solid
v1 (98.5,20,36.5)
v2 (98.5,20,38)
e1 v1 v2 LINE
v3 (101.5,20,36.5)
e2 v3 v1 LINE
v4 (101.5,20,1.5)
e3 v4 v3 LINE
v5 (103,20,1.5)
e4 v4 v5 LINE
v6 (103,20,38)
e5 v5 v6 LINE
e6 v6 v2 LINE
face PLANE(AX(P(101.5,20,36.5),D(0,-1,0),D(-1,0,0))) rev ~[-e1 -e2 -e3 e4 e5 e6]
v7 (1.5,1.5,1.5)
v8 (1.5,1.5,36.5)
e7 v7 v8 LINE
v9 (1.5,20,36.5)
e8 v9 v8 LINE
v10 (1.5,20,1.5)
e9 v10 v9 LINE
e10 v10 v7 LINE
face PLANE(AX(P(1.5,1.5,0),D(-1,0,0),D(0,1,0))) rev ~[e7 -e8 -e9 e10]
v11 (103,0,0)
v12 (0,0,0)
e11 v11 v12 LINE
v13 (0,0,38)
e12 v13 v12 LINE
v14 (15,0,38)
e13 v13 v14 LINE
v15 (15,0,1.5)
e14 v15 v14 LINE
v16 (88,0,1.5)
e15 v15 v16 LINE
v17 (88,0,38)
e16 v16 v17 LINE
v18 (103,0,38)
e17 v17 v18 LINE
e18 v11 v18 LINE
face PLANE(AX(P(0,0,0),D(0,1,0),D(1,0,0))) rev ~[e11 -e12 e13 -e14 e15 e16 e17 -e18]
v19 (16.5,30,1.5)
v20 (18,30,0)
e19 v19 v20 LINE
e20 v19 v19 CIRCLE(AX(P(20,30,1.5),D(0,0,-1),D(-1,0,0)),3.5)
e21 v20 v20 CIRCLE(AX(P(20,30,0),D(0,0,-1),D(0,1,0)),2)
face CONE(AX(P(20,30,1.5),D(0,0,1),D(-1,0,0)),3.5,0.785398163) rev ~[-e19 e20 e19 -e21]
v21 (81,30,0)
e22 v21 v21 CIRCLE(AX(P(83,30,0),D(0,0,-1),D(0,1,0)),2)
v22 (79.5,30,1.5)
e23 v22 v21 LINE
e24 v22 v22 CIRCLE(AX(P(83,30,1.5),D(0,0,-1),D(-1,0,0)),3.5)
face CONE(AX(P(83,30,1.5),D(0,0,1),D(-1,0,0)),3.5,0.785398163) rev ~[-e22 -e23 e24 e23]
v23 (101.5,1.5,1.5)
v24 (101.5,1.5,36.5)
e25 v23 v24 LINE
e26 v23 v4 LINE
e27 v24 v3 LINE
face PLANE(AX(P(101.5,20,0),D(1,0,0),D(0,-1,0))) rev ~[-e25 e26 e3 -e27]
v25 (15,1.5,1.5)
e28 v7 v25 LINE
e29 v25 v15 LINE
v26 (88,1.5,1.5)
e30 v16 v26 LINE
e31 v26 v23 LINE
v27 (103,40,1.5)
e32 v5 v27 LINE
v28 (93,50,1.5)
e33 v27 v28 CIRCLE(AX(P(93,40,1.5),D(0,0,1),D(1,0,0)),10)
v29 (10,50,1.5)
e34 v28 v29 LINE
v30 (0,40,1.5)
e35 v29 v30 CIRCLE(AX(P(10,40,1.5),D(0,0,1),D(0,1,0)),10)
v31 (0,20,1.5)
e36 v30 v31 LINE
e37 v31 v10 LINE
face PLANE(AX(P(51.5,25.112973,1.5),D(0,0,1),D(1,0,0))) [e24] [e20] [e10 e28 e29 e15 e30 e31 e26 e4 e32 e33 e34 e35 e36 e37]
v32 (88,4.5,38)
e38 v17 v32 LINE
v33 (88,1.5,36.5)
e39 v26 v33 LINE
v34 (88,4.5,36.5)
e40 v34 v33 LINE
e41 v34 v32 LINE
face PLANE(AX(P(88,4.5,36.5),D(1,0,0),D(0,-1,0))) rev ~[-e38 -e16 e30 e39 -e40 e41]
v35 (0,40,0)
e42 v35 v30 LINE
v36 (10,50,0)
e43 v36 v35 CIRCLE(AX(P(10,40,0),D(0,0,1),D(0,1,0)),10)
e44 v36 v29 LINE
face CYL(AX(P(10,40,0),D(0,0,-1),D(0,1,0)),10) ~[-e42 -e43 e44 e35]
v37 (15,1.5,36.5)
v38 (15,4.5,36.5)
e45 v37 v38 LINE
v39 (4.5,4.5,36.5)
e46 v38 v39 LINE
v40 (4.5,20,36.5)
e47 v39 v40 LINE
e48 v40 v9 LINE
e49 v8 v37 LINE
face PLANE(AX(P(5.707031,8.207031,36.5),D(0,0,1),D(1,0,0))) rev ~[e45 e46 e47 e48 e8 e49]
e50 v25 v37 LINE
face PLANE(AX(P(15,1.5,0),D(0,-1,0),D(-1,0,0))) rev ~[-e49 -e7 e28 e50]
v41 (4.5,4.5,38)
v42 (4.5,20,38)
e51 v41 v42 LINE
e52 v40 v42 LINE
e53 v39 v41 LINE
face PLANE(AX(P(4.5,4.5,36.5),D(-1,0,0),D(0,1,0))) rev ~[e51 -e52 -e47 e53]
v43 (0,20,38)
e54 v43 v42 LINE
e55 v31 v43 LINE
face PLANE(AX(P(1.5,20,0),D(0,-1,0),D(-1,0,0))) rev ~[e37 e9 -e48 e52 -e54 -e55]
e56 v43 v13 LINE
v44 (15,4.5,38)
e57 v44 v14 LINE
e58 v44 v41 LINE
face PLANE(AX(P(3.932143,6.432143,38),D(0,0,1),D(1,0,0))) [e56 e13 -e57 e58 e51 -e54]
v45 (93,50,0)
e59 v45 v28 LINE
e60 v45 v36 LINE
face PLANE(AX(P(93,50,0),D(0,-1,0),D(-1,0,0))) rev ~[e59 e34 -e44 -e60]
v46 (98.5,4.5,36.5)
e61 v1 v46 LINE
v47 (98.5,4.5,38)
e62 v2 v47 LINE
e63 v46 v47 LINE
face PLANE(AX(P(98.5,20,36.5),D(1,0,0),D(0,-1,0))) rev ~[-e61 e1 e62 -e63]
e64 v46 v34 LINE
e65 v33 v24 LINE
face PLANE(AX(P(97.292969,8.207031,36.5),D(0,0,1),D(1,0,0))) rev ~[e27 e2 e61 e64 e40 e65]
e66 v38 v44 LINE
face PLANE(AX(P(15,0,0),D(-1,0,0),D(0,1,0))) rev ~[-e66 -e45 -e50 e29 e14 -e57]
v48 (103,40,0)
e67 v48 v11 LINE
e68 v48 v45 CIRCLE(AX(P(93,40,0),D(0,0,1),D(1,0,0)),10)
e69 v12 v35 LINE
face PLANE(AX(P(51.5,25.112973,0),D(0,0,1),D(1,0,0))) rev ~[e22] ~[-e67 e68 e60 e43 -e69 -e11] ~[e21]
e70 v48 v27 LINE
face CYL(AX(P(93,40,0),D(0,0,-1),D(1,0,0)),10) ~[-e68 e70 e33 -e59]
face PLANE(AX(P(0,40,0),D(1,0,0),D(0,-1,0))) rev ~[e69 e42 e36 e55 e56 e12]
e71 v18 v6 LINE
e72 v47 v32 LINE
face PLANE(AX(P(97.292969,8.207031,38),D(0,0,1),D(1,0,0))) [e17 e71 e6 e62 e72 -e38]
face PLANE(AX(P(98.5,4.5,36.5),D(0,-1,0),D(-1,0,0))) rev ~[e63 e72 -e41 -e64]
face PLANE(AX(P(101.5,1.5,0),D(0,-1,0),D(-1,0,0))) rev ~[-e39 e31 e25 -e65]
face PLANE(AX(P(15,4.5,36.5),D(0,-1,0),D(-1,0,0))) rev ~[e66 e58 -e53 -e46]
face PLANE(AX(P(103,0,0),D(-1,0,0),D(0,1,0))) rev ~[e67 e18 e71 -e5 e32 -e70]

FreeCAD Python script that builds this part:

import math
import FreeCAD as App
import Part
import Sketcher
from FreeCAD import Vector
Q = App.Units.Quantity

doc = App.newDocument("Part")
body = doc.addObject("PartDesign::Body", "Body")

sketch1 = body.newObject("Sketcher::SketchObject", "Sketch")
sketch1.AttachmentSupport = (doc.getObject("XY_Plane"), [""])
sketch1.MapMode = "FlatFace"
sketch1.addGeometry(Part.LineSegment(Vector(103, 0, 0), Vector(103, 40, 0)), False)
sketch1.addGeometry(Part.ArcOfCircle(Part.Circle(Vector(93, 40, 0), Vector(0, 0, 1), 10), math.radians(0), math.radians(90)), False)
sketch1.addGeometry(Part.LineSegment(Vector(93, 50, 0), Vector(10, 50, 0)), False)
sketch1.addGeometry(Part.ArcOfCircle(Part.Circle(Vector(10, 40, 0), Vector(0, 0, 1), 10), math.radians(90), math.radians(180)), False)
sketch1.addGeometry(Part.LineSegment(Vector(0, 40, 0), Vector(0, 0, 0)), False)
sketch1.addGeometry(Part.LineSegment(Vector(0, 0, 0), Vector(103, 0, 0)), False)
sketch1.addConstraint(Sketcher.Constraint("Tangent", 0, 2, 1, 1))
sketch1.addConstraint(Sketcher.Constraint("Tangent", 1, 2, 2, 1))
sketch1.addConstraint(Sketcher.Constraint("Tangent", 2, 2, 3, 1))
sketch1.addConstraint(Sketcher.Constraint("Tangent", 3, 2, 4, 1))
sketch1.addConstraint(Sketcher.Constraint("Coincident", 4, 2, 5, 1))
sketch1.addConstraint(Sketcher.Constraint("Coincident", 5, 2, 0, 1))
sketch1.addConstraint(Sketcher.Constraint("Vertical", 0))
sketch1.addConstraint(Sketcher.Constraint("Horizontal", 2))
sketch1.addConstraint(Sketcher.Constraint("Vertical", 4))
sketch1.addConstraint(Sketcher.Constraint("Horizontal", 5))
sketch1.addConstraint(Sketcher.Constraint("Coincident", 4, 2, -1, 1))
sketch1.addConstraint(Sketcher.Constraint("Equal", 1, 3))
sketch1.addConstraint(Sketcher.Constraint("Radius", 1, Q("10 mm")))
sketch1.addConstraint(Sketcher.Constraint("DistanceX", 2, 2, 2, 1, Q("83 mm")))
sketch1.addConstraint(Sketcher.Constraint("DistanceY", 0, 1, 0, 2, Q("40 mm")))
pad1 = body.newObject("PartDesign::Pad", "Pad")
pad1.Profile = sketch1
pad1.Length = 1.5

sketch2 = body.newObject("Sketcher::SketchObject", "Sketch001")
sketch2.AttachmentSupport = (doc.getObject("XY_Plane"), [""])
sketch2.MapMode = "FlatFace"
sketch2.addGeometry(Part.LineSegment(Vector(0, 20, 0), Vector(0, 0, 0)), False)
sketch2.addGeometry(Part.LineSegment(Vector(0, 0, 0), Vector(15, 0, 0)), False)
sketch2.addGeometry(Part.LineSegment(Vector(15, 0, 0), Vector(15, 1.5, 0)), False)
sketch2.addGeometry(Part.LineSegment(Vector(15, 1.5, 0), Vector(1.5, 1.5, 0)), False)
sketch2.addGeometry(Part.LineSegment(Vector(1.5, 1.5, 0), Vector(1.5, 20, 0)), False)
sketch2.addGeometry(Part.LineSegment(Vector(1.5, 20, 0), Vector(0, 20, 0)), False)
sketch2.addGeometry(Part.LineSegment(Vector(88, 1.5, 0), Vector(88, 0, 0)), False)
sketch2.addGeometry(Part.LineSegment(Vector(88, 0, 0), Vector(103, 0, 0)), False)
sketch2.addGeometry(Part.LineSegment(Vector(103, 0, 0), Vector(103, 20, 0)), False)
sketch2.addGeometry(Part.LineSegment(Vector(103, 20, 0), Vector(101.5, 20, 0)), False)
sketch2.addGeometry(Part.LineSegment(Vector(101.5, 20, 0), Vector(101.5, 1.5, 0)), False)
sketch2.addGeometry(Part.LineSegment(Vector(101.5, 1.5, 0), Vector(88, 1.5, 0)), False)
sketch2.addConstraint(Sketcher.Constraint("Coincident", 0, 2, 1, 1))
sketch2.addConstraint(Sketcher.Constraint("Coincident", 1, 2, 2, 1))
sketch2.addConstraint(Sketcher.Constraint("Coincident", 2, 2, 3, 1))
sketch2.addConstraint(Sketcher.Constraint("Coincident", 3, 2, 4, 1))
sketch2.addConstraint(Sketcher.Constraint("Coincident", 4, 2, 5, 1))
sketch2.addConstraint(Sketcher.Constraint("Coincident", 5, 2, 0, 1))
sketch2.addConstraint(Sketcher.Constraint("Coincident", 6, 2, 7, 1))
sketch2.addConstraint(Sketcher.Constraint("Coincident", 7, 2, 8, 1))
sketch2.addConstraint(Sketcher.Constraint("Coincident", 8, 2, 9, 1))
sketch2.addConstraint(Sketcher.Constraint("Coincident", 9, 2, 10, 1))
sketch2.addConstraint(Sketcher.Constraint("Coincident", 10, 2, 11, 1))
sketch2.addConstraint(Sketcher.Constraint("Coincident", 11, 2, 6, 1))
sketch2.addConstraint(Sketcher.Constraint("Vertical", 0))
sketch2.addConstraint(Sketcher.Constraint("Horizontal", 1))
sketch2.addConstraint(Sketcher.Constraint("Vertical", 2))
sketch2.addConstraint(Sketcher.Constraint("Horizontal", 3))
sketch2.addConstraint(Sketcher.Constraint("Vertical", 4))
sketch2.addConstraint(Sketcher.Constraint("Horizontal", 5))
sketch2.addConstraint(Sketcher.Constraint("Vertical", 6))
sketch2.addConstraint(Sketcher.Constraint("Horizontal", 7))
sketch2.addConstraint(Sketcher.Constraint("Vertical", 8))
sketch2.addConstraint(Sketcher.Constraint("Horizontal", 9))
sketch2.addConstraint(Sketcher.Constraint("Vertical", 10))
sketch2.addConstraint(Sketcher.Constraint("Horizontal", 11))
sketch2.addConstraint(Sketcher.Constraint("Coincident", 0, 2, -1, 1))
sketch2.addConstraint(Sketcher.Constraint("PointOnObject", 6, 2, -1))
sketch2.addConstraint(Sketcher.Constraint("Horizontal", 5, 2, 8, 2))
sketch2.addConstraint(Sketcher.Constraint("Horizontal", 3, 2, 10, 2))
sketch2.addConstraint(Sketcher.Constraint("Equal", 1, 7))
sketch2.addConstraint(Sketcher.Constraint("Equal", 5, 9))
sketch2.addConstraint(Sketcher.Constraint("Equal", 9, 2))
sketch2.addConstraint(Sketcher.Constraint("DistanceX", 1, 1, 1, 2, Q("15 mm")))
sketch2.addConstraint(Sketcher.Constraint("DistanceY", 0, 2, 0, 1, Q("20 mm")))
sketch2.addConstraint(Sketcher.Constraint("DistanceX", 3, 2, 3, 1, Q("13.5 mm")))
sketch2.addConstraint(Sketcher.Constraint("DistanceX", -1, 1, 6, 2, Q("88 mm")))
pad2 = body.newObject("PartDesign::Pad", "Pad001")
pad2.Profile = sketch2
pad2.Length = 38

sketch3 = body.newObject("Sketcher::SketchObject", "Sketch002")
sketch3.AttachmentSupport = (doc.getObject("XY_Plane"), [""])
sketch3.MapMode = "FlatFace"
sketch3.AttachmentOffset = App.Placement(Vector(0, 0, 36.5), App.Rotation())
sketch3.addGeometry(Part.LineSegment(Vector(88, 4.5, 0), Vector(88, 1.5, 0)), False)
sketch3.addGeometry(Part.LineSegment(Vector(88, 1.5, 0), Vector(101.5, 1.5, 0)), False)
sketch3.addGeometry(Part.LineSegment(Vector(101.5, 1.5, 0), Vector(101.5, 20, 0)), False)
sketch3.addGeometry(Part.LineSegment(Vector(101.5, 20, 0), Vector(98.5, 20, 0)), False)
sketch3.addGeometry(Part.LineSegment(Vector(98.5, 20, 0), Vector(98.5, 4.5, 0)), False)
sketch3.addGeometry(Part.LineSegment(Vector(98.5, 4.5, 0), Vector(88, 4.5, 0)), False)
sketch3.addGeometry(Part.LineSegment(Vector(1.5, 1.5, 0), Vector(15, 1.5, 0)), False)
sketch3.addGeometry(Part.LineSegment(Vector(15, 1.5, 0), Vector(15, 4.5, 0)), False)
sketch3.addGeometry(Part.LineSegment(Vector(15, 4.5, 0), Vector(4.5, 4.5, 0)), False)
sketch3.addGeometry(Part.LineSegment(Vector(4.5, 4.5, 0), Vector(4.5, 20, 0)), False)
sketch3.addGeometry(Part.LineSegment(Vector(4.5, 20, 0), Vector(1.5, 20, 0)), False)
sketch3.addGeometry(Part.LineSegment(Vector(1.5, 20, 0), Vector(1.5, 1.5, 0)), False)
sketch3.addConstraint(Sketcher.Constraint("Coincident", 0, 2, 1, 1))
sketch3.addConstraint(Sketcher.Constraint("Coincident", 1, 2, 2, 1))
sketch3.addConstraint(Sketcher.Constraint("Coincident", 2, 2, 3, 1))
sketch3.addConstraint(Sketcher.Constraint("Coincident", 3, 2, 4, 1))
sketch3.addConstraint(Sketcher.Constraint("Coincident", 4, 2, 5, 1))
sketch3.addConstraint(Sketcher.Constraint("Coincident", 5, 2, 0, 1))
sketch3.addConstraint(Sketcher.Constraint("Coincident", 6, 2, 7, 1))
sketch3.addConstraint(Sketcher.Constraint("Coincident", 7, 2, 8, 1))
sketch3.addConstraint(Sketcher.Constraint("Coincident", 8, 2, 9, 1))
sketch3.addConstraint(Sketcher.Constraint("Coincident", 9, 2, 10, 1))
sketch3.addConstraint(Sketcher.Constraint("Coincident", 10, 2, 11, 1))
sketch3.addConstraint(Sketcher.Constraint("Coincident", 11, 2, 6, 1))
sketch3.addConstraint(Sketcher.Constraint("Vertical", 0))
sketch3.addConstraint(Sketcher.Constraint("Horizontal", 1))
sketch3.addConstraint(Sketcher.Constraint("Vertical", 2))
sketch3.addConstraint(Sketcher.Constraint("Horizontal", 3))
sketch3.addConstraint(Sketcher.Constraint("Vertical", 4))
sketch3.addConstraint(Sketcher.Constraint("Horizontal", 5))
sketch3.addConstraint(Sketcher.Constraint("Horizontal", 6))
sketch3.addConstraint(Sketcher.Constraint("Vertical", 7))
sketch3.addConstraint(Sketcher.Constraint("Horizontal", 8))
sketch3.addConstraint(Sketcher.Constraint("Vertical", 9))
sketch3.addConstraint(Sketcher.Constraint("Horizontal", 10))
sketch3.addConstraint(Sketcher.Constraint("Vertical", 11))
sketch3.addConstraint(Sketcher.Constraint("Horizontal", 1, 2, 6, 2))
sketch3.addConstraint(Sketcher.Constraint("Horizontal", 5, 2, 7, 2))
sketch3.addConstraint(Sketcher.Constraint("Horizontal", 3, 2, 9, 2))
sketch3.addConstraint(Sketcher.Constraint("Equal", 1, 6))
sketch3.addConstraint(Sketcher.Constraint("Equal", 5, 8))
sketch3.addConstraint(Sketcher.Constraint("Equal", 10, 0))
sketch3.addConstraint(Sketcher.Constraint("DistanceX", 3, 2, 3, 1, Q("3 mm")))
sketch3.addConstraint(Sketcher.Constraint("DistanceX", 1, 1, 1, 2, Q("13.5 mm")))
sketch3.addConstraint(Sketcher.Constraint("DistanceY", 2, 1, 2, 2, Q("18.5 mm")))
sketch3.addConstraint(Sketcher.Constraint("DistanceX", -1, 1, 0, 2, Q("88 mm")))
sketch3.addConstraint(Sketcher.Constraint("DistanceY", -1, 1, 2, 2, Q("20 mm")))
sketch3.addConstraint(Sketcher.Constraint("DistanceX", -1, 1, 6, 2, Q("15 mm")))
pad3 = body.newObject("PartDesign::Pad", "Pad002")
pad3.Profile = sketch3
pad3.Length = 1.5

sketch4 = body.newObject("Sketcher::SketchObject", "Sketch003")
sketch4.AttachmentSupport = (doc.getObject("XY_Plane"), [""])
sketch4.MapMode = "FlatFace"
sketch4.AttachmentOffset = App.Placement(Vector(0, 0, 1.5), App.Rotation())
sketch4.addGeometry(Part.Circle(Vector(20, 30, 0), Vector(0, 0, 1), 2), False)
sketch4.addGeometry(Part.Circle(Vector(83, 30, 0), Vector(0, 0, 1), 2), False)
sketch4.addConstraint(Sketcher.Constraint("Equal", 0, 1))
sketch4.addConstraint(Sketcher.Constraint("Horizontal", 0, 3, 1, 3))
sketch4.addConstraint(Sketcher.Constraint("Diameter", 0, Q("4 mm")))
sketch4.addConstraint(Sketcher.Constraint("DistanceX", -1, 1, 0, 3, Q("20 mm")))
sketch4.addConstraint(Sketcher.Constraint("DistanceY", -1, 1, 0, 3, Q("30 mm")))
sketch4.addConstraint(Sketcher.Constraint("DistanceX", -1, 1, 1, 3, Q("83 mm")))
doc.recompute()
hole = body.newObject("PartDesign::Hole", "Hole")
hole.Profile = sketch4
hole.ThreadType = "None"
hole.Diameter = 4
hole.DepthType = "ThroughAll"
hole.HoleCutType = "Countersink"
hole.HoleCutDiameter = 7
hole.HoleCutCountersinkAngle = 90

doc.recompute()
